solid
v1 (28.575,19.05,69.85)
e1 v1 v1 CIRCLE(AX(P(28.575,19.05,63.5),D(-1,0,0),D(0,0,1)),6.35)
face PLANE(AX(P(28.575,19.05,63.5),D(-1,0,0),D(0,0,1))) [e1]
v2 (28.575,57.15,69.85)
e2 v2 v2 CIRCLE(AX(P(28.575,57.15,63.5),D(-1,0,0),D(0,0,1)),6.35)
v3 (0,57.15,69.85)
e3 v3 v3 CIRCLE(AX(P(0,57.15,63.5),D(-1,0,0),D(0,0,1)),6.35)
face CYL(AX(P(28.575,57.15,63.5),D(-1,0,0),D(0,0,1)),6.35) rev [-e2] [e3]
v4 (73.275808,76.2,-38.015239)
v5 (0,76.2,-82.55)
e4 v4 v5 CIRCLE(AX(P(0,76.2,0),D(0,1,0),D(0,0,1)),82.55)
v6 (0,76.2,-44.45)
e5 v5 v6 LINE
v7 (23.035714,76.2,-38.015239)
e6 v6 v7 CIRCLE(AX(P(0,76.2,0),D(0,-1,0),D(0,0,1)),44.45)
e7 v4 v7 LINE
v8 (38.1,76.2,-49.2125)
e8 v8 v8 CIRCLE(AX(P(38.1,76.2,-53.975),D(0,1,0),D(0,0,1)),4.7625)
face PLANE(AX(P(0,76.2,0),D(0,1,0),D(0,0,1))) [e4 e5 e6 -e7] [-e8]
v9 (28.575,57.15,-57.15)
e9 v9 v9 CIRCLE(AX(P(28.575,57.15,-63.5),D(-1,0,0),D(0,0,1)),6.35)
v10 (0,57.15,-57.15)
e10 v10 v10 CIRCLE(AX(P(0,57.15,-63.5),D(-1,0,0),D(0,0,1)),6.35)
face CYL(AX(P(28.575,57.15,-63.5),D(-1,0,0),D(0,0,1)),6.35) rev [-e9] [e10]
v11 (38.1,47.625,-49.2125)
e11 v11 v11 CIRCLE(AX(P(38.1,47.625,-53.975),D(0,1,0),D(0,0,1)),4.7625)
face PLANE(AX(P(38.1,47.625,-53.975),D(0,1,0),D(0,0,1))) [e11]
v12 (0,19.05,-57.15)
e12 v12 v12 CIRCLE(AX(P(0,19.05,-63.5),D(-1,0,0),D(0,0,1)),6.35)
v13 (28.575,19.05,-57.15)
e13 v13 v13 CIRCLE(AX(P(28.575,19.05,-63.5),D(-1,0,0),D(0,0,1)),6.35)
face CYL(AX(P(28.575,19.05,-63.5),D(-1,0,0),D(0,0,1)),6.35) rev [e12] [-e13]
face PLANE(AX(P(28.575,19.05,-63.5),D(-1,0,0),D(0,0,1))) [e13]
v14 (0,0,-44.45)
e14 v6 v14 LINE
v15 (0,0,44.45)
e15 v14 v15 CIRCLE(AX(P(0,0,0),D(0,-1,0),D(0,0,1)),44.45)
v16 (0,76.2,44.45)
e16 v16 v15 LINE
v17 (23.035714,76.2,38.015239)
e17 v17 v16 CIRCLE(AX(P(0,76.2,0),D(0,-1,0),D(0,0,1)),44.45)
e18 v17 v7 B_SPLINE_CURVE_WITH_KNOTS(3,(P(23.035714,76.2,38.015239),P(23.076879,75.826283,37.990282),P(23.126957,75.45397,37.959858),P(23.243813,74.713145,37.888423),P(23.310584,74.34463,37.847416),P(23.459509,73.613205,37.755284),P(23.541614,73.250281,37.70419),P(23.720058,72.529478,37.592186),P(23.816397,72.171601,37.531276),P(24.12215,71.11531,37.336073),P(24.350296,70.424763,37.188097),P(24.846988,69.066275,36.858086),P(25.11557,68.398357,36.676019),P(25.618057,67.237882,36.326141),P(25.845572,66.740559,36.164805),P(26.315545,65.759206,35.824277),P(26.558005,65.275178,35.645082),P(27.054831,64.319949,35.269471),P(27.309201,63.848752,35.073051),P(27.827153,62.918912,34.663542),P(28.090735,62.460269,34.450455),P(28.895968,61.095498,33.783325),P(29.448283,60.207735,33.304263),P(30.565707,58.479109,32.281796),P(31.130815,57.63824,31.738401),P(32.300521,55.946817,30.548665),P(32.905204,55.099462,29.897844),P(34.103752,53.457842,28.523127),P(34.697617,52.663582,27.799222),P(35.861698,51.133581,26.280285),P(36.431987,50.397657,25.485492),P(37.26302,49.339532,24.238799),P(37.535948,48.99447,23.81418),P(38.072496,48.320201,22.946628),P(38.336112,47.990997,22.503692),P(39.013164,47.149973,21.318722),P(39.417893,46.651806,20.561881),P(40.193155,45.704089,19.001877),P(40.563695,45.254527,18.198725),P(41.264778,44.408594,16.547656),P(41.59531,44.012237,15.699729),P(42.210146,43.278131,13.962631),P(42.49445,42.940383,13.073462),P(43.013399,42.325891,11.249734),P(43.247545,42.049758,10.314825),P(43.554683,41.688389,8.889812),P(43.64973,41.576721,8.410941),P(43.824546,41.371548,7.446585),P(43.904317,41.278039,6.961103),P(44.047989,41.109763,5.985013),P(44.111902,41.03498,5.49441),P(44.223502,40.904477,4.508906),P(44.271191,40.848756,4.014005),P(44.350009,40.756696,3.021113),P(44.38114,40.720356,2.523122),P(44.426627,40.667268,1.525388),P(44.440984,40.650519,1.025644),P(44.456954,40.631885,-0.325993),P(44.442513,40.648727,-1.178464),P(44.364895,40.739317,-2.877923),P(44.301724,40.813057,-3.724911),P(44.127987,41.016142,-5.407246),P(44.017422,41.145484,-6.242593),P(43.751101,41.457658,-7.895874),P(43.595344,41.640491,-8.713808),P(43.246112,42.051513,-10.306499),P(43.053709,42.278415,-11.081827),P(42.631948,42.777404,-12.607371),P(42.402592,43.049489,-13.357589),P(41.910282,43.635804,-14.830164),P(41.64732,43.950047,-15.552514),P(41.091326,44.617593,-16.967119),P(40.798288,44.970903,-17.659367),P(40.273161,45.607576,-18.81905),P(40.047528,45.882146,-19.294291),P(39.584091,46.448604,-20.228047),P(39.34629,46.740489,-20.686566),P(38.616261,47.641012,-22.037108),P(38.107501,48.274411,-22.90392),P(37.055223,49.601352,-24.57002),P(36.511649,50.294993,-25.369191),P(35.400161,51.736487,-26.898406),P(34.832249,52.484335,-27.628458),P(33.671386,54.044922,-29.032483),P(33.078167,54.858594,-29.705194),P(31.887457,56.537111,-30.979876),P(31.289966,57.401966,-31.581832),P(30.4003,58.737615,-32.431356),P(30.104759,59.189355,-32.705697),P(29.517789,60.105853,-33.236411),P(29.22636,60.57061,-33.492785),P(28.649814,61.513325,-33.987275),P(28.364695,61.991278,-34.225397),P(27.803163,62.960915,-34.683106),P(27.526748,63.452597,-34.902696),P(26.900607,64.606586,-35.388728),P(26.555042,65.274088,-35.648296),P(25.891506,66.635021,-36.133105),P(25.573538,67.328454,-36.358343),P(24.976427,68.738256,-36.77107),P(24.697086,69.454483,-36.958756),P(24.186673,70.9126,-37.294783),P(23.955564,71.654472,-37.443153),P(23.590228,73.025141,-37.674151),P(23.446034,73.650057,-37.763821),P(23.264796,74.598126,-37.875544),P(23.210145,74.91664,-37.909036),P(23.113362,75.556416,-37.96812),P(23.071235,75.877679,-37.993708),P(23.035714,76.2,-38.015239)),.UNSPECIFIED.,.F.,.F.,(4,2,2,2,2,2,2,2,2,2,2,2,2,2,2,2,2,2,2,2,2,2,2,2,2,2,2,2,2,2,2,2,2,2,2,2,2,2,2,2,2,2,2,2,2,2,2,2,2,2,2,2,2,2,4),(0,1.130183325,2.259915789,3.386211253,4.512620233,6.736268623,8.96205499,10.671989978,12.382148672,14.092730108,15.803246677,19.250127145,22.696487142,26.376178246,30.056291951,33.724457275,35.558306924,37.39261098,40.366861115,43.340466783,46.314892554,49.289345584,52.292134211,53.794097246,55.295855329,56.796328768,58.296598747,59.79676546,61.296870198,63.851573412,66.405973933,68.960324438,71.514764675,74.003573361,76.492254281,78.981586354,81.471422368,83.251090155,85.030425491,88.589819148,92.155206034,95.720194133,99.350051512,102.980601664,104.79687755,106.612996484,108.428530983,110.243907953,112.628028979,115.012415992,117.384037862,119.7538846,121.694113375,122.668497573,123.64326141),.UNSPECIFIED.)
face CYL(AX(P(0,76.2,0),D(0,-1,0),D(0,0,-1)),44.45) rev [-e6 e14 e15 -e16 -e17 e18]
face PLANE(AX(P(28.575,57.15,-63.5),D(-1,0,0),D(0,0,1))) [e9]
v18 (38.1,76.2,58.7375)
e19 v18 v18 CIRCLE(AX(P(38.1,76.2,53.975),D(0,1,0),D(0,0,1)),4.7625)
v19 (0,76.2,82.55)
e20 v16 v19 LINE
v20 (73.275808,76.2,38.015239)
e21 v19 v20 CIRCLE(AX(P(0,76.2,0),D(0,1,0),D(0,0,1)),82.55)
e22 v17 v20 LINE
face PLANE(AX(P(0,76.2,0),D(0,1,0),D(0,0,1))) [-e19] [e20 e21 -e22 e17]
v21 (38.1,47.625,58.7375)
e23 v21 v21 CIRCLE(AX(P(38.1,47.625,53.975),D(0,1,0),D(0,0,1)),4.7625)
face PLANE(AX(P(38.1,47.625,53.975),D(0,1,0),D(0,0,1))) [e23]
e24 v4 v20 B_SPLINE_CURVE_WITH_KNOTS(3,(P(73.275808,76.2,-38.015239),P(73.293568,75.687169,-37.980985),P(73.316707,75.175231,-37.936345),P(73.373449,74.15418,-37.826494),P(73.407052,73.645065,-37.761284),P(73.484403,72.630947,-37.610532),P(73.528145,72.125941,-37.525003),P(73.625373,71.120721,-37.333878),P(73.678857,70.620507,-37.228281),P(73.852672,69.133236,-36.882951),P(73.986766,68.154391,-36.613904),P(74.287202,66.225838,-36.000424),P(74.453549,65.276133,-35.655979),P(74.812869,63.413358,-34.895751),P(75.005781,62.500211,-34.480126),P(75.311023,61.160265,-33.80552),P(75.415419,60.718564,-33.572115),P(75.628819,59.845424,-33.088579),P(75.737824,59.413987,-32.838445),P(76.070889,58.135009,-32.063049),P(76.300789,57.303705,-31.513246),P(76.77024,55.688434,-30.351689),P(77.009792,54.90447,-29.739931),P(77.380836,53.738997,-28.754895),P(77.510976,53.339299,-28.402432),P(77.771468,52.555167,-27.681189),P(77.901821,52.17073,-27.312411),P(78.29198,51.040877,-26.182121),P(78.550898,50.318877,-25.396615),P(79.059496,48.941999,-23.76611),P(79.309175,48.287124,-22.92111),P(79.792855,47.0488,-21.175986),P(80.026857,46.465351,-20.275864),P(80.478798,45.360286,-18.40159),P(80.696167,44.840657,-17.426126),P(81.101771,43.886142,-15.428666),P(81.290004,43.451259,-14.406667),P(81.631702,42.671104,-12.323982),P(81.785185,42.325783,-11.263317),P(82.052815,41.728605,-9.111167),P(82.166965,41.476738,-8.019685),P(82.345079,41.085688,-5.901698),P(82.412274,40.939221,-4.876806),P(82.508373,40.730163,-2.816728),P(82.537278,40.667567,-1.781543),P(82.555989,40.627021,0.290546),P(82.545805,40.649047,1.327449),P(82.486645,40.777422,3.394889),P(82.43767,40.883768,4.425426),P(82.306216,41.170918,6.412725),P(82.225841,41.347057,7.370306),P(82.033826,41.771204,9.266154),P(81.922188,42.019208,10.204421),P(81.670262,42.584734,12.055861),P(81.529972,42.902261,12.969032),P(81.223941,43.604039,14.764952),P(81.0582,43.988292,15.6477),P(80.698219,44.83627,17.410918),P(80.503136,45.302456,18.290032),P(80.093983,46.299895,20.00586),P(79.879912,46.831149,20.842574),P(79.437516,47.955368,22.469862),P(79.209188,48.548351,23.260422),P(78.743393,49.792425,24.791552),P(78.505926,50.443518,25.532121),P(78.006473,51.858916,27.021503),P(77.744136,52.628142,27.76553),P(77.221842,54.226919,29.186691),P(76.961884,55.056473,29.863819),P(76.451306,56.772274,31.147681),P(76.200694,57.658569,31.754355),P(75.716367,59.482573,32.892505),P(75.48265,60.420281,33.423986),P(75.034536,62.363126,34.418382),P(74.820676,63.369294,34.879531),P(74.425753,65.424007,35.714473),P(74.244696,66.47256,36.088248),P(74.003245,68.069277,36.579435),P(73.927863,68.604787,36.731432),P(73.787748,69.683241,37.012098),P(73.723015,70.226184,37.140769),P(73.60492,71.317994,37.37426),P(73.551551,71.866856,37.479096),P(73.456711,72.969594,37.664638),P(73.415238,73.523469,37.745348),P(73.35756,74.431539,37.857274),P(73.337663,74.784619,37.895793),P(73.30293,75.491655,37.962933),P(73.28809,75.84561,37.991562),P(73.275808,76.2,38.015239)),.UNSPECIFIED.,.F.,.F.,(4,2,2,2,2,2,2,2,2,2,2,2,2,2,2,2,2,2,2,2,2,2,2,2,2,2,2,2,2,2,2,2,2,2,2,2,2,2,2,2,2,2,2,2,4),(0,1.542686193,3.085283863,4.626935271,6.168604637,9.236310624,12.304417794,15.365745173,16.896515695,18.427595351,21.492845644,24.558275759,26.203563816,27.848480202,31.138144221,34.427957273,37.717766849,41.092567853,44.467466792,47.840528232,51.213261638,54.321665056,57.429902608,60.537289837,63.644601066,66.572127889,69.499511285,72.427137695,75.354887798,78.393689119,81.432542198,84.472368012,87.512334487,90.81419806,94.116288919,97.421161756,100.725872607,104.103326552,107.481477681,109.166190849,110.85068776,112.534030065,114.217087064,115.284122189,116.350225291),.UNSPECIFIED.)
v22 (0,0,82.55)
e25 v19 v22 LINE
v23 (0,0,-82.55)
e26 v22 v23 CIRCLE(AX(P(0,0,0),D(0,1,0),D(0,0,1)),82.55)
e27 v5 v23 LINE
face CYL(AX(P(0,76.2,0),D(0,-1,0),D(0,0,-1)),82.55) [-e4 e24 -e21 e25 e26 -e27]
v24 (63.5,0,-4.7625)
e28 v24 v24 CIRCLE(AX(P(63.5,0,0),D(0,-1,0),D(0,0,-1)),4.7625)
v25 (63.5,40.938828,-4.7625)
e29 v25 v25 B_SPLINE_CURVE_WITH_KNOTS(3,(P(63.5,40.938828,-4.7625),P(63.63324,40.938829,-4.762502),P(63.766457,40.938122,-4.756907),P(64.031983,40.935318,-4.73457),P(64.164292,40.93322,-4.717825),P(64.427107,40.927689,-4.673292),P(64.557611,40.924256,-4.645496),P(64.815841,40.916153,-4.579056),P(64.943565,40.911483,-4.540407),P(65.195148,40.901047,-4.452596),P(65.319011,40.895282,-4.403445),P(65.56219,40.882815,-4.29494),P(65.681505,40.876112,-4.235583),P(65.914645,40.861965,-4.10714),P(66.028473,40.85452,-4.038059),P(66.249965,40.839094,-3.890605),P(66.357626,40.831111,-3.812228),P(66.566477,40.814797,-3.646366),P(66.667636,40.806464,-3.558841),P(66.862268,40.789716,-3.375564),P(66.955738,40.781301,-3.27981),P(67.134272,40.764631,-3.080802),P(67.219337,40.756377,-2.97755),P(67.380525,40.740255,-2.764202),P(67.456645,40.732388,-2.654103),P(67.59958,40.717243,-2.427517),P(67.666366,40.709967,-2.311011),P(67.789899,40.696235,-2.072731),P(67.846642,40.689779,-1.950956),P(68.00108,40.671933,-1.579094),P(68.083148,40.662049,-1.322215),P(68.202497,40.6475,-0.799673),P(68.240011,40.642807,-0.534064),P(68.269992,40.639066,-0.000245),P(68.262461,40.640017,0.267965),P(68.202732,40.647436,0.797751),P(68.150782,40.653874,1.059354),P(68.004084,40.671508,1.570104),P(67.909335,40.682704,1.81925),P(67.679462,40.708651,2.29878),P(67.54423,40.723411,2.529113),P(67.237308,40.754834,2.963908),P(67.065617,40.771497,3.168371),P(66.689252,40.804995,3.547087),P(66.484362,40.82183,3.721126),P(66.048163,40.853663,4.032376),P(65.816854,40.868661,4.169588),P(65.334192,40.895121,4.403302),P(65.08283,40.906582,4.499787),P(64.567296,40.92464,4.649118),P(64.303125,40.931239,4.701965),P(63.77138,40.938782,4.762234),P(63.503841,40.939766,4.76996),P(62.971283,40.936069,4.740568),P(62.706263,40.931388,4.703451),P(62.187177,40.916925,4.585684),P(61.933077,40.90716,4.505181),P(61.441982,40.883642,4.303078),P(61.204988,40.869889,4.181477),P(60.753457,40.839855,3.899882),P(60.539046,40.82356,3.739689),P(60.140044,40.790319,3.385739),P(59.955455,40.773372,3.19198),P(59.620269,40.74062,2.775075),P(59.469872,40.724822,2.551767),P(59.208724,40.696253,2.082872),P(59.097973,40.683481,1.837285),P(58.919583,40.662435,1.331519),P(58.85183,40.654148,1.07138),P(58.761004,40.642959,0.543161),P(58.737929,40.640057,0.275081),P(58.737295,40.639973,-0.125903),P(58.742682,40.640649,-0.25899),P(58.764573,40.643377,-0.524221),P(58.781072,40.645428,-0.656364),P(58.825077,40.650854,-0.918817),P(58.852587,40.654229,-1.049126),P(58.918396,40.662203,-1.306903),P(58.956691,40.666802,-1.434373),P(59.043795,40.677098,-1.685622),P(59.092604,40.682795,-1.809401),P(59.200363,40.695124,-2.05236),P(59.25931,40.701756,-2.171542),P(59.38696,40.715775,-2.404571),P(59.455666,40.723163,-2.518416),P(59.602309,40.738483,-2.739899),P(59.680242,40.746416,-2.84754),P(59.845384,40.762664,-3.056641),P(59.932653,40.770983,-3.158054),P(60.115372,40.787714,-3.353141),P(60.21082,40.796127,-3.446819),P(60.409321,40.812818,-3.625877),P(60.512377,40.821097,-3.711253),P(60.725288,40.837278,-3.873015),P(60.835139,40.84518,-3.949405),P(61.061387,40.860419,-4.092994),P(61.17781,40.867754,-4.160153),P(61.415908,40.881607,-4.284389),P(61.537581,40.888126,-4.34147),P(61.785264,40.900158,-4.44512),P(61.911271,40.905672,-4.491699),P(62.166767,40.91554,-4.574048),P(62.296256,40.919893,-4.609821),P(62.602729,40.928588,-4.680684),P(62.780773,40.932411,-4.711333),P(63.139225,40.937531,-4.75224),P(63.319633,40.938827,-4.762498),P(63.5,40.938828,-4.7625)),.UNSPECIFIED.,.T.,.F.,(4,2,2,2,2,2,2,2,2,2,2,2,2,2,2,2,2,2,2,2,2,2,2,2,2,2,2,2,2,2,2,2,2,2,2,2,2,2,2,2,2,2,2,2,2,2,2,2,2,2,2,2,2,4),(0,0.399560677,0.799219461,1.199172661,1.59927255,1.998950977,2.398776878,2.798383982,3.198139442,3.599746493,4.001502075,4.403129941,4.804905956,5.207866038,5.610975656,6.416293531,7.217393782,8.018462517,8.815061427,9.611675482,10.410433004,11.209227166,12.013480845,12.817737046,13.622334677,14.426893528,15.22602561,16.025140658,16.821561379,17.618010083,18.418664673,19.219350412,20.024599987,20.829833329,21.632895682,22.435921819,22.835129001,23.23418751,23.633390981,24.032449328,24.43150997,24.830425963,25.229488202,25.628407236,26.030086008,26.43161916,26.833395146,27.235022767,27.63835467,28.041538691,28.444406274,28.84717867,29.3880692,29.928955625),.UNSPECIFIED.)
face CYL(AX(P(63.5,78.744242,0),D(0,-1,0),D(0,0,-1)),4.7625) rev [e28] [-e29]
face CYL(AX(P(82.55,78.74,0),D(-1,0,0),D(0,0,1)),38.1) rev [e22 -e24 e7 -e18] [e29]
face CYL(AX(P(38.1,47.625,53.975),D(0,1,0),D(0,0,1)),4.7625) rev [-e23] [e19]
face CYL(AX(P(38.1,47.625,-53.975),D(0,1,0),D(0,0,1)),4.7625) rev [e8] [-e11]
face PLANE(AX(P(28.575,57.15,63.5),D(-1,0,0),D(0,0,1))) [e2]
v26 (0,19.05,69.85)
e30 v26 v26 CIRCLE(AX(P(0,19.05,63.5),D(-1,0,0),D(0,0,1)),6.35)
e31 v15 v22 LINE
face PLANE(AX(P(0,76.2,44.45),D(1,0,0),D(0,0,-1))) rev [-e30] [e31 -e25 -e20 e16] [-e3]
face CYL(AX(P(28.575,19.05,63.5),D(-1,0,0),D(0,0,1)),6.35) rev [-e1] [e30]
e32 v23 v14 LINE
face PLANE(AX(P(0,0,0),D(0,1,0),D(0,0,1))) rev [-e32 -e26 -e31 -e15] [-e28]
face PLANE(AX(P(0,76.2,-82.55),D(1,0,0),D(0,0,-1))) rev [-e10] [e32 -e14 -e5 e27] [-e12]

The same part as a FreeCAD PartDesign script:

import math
import FreeCAD as App
import Part
import Sketcher
from FreeCAD import Vector
Q = App.Units.Quantity

doc = App.newDocument("Part")
params = doc.addObject("Spreadsheet::Sheet", "Params")
for row, (alias, value) in enumerate([
    ("sketch1_radius", "1.75 in"),
    ("sketch1_radius2", "3.25 in"),
    ("pad1_length", "3 in"),
    ("sketch2_diameter", "0.5 in"),
    ("pocket1_length", "1.125 in"),
    ("sketch3_diameter", "3 in"),
    ("sketch4_diameter", "0.375 in"),
    ("sketch5_diameter", "0.375 in"),
    ("pocket4_length", "1.125 in"),
], start=1):
    params.set(f"A{row}", alias)
    params.set(f"B{row}", "=" + value)
    params.setAlias(f"B{row}", alias)

body = doc.addObject("PartDesign::Body", "Body")

sketch1 = body.newObject("Sketcher::SketchObject", "Sketch")
sketch1.AttachmentSupport = (doc.getObject("XZ_Plane"), [""])
sketch1.MapMode = "FlatFace"
sketch1.addGeometry([
    Part.LineSegment(Vector(0, -82.55, 0), Vector(0, -44.45, 0)),
    Part.ArcOfCircle(Part.Circle(Vector(0, 0, 0), Vector(0, 0, 1), 44.45), math.radians(-90), math.radians(90)),
    Part.LineSegment(Vector(0, 44.45, 0), Vector(0, 82.55, 0)),
    Part.ArcOfCircle(Part.Circle(Vector(0, 0, 0), Vector(0, 0, 1), 82.55), math.radians(-90), math.radians(90)),
], False)
sketch1.addConstraint([
    Sketcher.Constraint("Coincident", 0, 2, 1, 1),
    Sketcher.Constraint("Coincident", 1, 2, 2, 1),
    Sketcher.Constraint("Coincident", 2, 2, 3, 2),
    Sketcher.Constraint("Coincident", 3, 1, 0, 1),
    Sketcher.Constraint("Vertical", 0),
    Sketcher.Constraint("Vertical", 2),
    Sketcher.Constraint("Coincident", 1, 3, -1, 1),
    Sketcher.Constraint("Coincident", 3, 3, -1, 1),
    Sketcher.Constraint("PointOnObject", 0, 2, -2),
    Sketcher.Constraint("PointOnObject", 1, 2, -2),
    Sketcher.Constraint("Radius", 1, Q("1.75 in")),
    Sketcher.Constraint("Radius", 3, Q("3.25 in")),
])
sketch1.setExpression("Constraints[10]", "Params.sketch1_radius")
sketch1.setExpression("Constraints[11]", "Params.sketch1_radius2")
pad1 = body.newObject("PartDesign::Pad", "Pad")
pad1.Profile = sketch1
pad1.setExpression("Length", "Params.pad1_length")
pad1.Reversed = True

sketch2 = body.newObject("Sketcher::SketchObject", "Sketch001")
sketch2.AttachmentSupport = (doc.getObject("YZ_Plane"), [""])
sketch2.MapMode = "FlatFace"
sketch2.addGeometry([
    Part.Circle(Vector(57.15, -63.5, 0), Vector(0, 0, 1), 6.35),
    Part.Circle(Vector(19.05, -63.5, 0), Vector(0, 0, 1), 6.35),
    Part.Circle(Vector(19.05, 63.5, 0), Vector(0, 0, 1), 6.35),
    Part.Circle(Vector(57.15, 63.5, 0), Vector(0, 0, 1), 6.35),
], False)
sketch2.addConstraint([
    Sketcher.Constraint("Equal", 0, 1),
    Sketcher.Constraint("Equal", 1, 2),
    Sketcher.Constraint("Equal", 2, 3),
    Sketcher.Constraint("Symmetric", 1, 3, 2, 3, -1),
    Sketcher.Constraint("Symmetric", 0, 3, 3, 3, -1),
    Sketcher.Constraint("Horizontal", 0, 3, 1, 3),
    Sketcher.Constraint("Diameter", 0, Q("0.5 in")),
    Sketcher.Constraint("DistanceY", 1, 3, 2, 3, Q("5 in")),
    Sketcher.Constraint("DistanceX", 1, 3, 0, 3, Q("1.5 in")),
    Sketcher.Constraint("DistanceX", -1, 1, 0, 3, Q("2.25 in")),
])
sketch2.setExpression("Constraints[6]", "Params.sketch2_diameter")
pocket1 = body.newObject("PartDesign::Pocket", "Pocket")
pocket1.Profile = sketch2
pocket1.setExpression("Length", "Params.pocket1_length")
pocket1.Reversed = True

sketch3 = body.newObject("Sketcher::SketchObject", "Sketch002")
sketch3.AttachmentSupport = (doc.getObject("YZ_Plane"), [""])
sketch3.MapMode = "FlatFace"
sketch3.addGeometry(Part.Circle(Vector(78.74, 0, 0), Vector(0, 0, 1), 38.1), False)
sketch3.addConstraint([
    Sketcher.Constraint("PointOnObject", 0, 3, -1),
    Sketcher.Constraint("Diameter", 0, Q("3 in")),
    Sketcher.Constraint("DistanceX", -1, 1, 0, 3, Q("3.1 in")),
])
sketch3.setExpression("Constraints[1]", "Params.sketch3_diameter")
pocket2 = body.newObject("PartDesign::Pocket", "Pocket001")
pocket2.Profile = sketch3
pocket2.Type = "ThroughAll"
pocket2.Reversed = True

sketch4 = body.newObject("Sketcher::SketchObject", "Sketch003")
sketch4.AttachmentSupport = (doc.getObject("XZ_Plane"), [""])
sketch4.MapMode = "FlatFace"
sketch4.addGeometry(Part.Circle(Vector(63.5, 0, 0), Vector(0, 0, 1), 4.7625), False)
sketch4.addConstraint([
    Sketcher.Constraint("PointOnObject", 0, 3, -1),
    Sketcher.Constraint("Diameter", 0, Q("0.375 in")),
    Sketcher.Constraint("DistanceX", -1, 1, 0, 3, Q("2.5 in")),
])
sketch4.setExpression("Constraints[1]", "Params.sketch4_diameter")
pocket3 = body.newObject("PartDesign::Pocket", "Pocket002")
pocket3.Profile = sketch4
pocket3.Type = "ThroughAll"

sketch5 = body.newObject("Sketcher::SketchObject", "Sketch004")
sketch5.AttachmentSupport = (doc.getObject("XZ_Plane"), [""])
sketch5.MapMode = "FlatFace"
sketch5.AttachmentOffset = App.Placement(Vector(0, 0, -3 * 25.4), App.Rotation())
sketch5.addGeometry([
    Part.Circle(Vector(38.1, 53.975, 0), Vector(0, 0, 1), 4.7625),
    Part.Circle(Vector(38.1, -53.975, 0), Vector(0, 0, 1), 4.7625),
], False)
sketch5.addConstraint([
    Sketcher.Constraint("Equal", 0, 1),
    Sketcher.Constraint("Symmetric", 0, 3, 1, 3, -1),
    Sketcher.Constraint("Diameter", 0, Q("0.375 in")),
    Sketcher.Constraint("DistanceX", -1, 1, 0, 3, Q("1.5 in")),
    Sketcher.Constraint("DistanceY", 1, 3, 0, 3, Q("4.25 in")),
])
sketch5.setExpression("Constraints[2]", "Params.sketch5_diameter")
pocket4 = body.newObject("PartDesign::Pocket", "Pocket003")
pocket4.Profile = sketch5
pocket4.setExpression("Length", "Params.pocket4_length")
pocket4.Reversed = True

doc.recompute()
